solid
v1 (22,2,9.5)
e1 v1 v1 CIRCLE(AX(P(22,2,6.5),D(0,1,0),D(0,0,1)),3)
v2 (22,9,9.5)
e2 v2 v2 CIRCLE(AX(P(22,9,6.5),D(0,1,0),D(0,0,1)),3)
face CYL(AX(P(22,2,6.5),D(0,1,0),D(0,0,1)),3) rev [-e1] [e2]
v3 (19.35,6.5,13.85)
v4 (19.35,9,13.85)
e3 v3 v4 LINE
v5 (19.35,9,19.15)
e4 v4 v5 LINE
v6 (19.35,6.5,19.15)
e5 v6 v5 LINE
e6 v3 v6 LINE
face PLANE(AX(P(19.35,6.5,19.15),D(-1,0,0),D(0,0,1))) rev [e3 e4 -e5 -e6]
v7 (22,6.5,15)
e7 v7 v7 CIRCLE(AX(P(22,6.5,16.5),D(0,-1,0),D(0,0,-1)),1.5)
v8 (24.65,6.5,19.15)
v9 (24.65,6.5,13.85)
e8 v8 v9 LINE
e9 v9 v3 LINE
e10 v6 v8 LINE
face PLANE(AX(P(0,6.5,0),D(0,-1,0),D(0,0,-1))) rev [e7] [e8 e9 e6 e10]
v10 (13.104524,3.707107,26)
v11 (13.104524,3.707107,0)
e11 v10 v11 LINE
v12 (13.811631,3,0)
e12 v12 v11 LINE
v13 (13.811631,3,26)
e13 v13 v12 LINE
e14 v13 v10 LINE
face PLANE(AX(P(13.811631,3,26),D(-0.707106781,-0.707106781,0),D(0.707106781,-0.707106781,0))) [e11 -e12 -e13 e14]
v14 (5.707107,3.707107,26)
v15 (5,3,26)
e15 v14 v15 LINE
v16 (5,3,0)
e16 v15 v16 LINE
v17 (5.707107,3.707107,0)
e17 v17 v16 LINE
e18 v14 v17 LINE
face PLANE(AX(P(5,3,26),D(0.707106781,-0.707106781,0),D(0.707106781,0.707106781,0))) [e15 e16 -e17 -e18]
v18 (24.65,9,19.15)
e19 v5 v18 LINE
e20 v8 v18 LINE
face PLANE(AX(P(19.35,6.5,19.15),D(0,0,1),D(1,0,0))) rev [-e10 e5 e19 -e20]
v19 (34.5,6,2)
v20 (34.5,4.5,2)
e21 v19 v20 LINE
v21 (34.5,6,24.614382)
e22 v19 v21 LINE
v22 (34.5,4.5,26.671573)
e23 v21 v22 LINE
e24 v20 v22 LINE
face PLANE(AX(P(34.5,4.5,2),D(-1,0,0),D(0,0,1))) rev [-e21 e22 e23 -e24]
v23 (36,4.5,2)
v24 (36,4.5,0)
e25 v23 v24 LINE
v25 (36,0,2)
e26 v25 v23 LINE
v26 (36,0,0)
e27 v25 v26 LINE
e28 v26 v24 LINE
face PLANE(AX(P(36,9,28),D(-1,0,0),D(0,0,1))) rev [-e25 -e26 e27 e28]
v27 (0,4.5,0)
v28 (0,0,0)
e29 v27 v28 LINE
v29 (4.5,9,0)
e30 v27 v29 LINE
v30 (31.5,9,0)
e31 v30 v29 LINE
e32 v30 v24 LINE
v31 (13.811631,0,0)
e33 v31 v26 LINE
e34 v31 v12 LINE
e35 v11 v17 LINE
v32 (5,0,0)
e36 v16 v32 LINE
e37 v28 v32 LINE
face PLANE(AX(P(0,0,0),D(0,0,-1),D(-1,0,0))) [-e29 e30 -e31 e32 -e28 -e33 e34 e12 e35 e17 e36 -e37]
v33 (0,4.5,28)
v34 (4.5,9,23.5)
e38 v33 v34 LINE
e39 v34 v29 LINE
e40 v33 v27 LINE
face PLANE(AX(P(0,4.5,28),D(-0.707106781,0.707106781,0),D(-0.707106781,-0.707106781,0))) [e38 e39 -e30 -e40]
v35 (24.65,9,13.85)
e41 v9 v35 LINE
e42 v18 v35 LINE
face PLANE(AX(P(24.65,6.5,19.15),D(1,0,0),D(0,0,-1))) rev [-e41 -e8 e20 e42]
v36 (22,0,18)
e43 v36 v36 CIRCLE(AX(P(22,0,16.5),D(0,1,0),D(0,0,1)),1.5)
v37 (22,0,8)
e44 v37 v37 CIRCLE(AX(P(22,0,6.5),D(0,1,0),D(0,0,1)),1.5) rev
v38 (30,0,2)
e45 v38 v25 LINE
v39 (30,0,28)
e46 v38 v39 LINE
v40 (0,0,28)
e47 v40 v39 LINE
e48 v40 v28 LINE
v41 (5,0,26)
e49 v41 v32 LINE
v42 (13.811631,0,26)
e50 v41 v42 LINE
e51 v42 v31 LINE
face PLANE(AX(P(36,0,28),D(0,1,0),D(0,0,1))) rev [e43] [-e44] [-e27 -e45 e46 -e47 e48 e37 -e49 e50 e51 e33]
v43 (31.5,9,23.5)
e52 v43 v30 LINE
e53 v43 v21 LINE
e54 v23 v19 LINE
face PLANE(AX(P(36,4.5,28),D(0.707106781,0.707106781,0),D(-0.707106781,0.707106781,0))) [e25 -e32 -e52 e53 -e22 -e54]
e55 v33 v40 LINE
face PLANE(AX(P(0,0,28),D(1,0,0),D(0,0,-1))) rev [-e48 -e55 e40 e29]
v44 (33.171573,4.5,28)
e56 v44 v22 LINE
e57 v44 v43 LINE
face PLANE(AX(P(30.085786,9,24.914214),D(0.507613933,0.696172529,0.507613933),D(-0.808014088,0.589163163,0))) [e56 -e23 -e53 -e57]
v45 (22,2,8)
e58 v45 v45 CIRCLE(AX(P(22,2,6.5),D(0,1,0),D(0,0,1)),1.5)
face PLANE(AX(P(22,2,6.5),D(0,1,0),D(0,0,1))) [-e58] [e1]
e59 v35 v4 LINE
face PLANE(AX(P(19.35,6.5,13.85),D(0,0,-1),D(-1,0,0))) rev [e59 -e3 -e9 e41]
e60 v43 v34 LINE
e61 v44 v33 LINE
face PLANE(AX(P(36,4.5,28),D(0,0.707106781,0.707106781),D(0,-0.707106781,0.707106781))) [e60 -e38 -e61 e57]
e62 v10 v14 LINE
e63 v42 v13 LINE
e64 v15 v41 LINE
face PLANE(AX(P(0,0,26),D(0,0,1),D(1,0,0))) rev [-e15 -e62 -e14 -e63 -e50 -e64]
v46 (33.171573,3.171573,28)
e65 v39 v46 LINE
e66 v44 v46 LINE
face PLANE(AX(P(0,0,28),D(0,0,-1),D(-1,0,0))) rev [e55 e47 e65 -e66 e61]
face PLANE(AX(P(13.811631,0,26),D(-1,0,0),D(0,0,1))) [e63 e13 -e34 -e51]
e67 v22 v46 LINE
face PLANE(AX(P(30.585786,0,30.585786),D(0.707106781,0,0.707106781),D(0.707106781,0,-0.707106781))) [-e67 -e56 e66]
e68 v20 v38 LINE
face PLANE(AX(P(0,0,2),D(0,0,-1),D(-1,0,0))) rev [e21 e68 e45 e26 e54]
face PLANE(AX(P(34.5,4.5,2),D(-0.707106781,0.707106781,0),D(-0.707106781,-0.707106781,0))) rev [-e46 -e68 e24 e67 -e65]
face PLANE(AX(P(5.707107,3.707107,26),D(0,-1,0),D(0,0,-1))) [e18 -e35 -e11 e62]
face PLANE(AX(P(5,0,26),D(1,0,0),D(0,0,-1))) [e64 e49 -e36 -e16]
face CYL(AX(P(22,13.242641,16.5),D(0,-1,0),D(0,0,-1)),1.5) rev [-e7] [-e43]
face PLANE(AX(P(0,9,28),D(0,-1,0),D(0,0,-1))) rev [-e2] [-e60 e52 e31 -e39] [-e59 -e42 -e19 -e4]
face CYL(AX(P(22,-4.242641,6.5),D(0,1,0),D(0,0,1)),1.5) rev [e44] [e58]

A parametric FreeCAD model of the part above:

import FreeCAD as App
import Part
import Sketcher
from FreeCAD import Vector
Q = App.Units.Quantity


def add_polygon(sketch, points):
    """Adds a closed chain of lines whose ends are joined by coincident constraints."""
    first, n = sketch.GeometryCount, len(points)
    for a, b in zip(points, points[1:] + points[:1]):
        sketch.addGeometry(Part.LineSegment(App.Vector(*a, 0), App.Vector(*b, 0)), False)
    for i in range(n):
        sketch.addConstraint(Sketcher.Constraint("Coincident", first + i, 2, first + (i + 1) % n, 1))

doc = App.newDocument("Part")
params = doc.addObject("Spreadsheet::Sheet", "Params")
for row, (alias, value) in enumerate([
    ("sketch1_width", "36 mm"),
    ("sketch1_height", "9 mm"),
    ("pad1_length", "28 mm"),
    ("sketch2_width", "4.5 mm"),
    ("pocket1_length", "28 mm"),
    ("sketch3_width", "4.5 mm"),
    ("pocket2_length", "36 mm"),
    ("pocket3_length", "2 mm"),
    ("sketch6_height", "3 mm"),
    ("sketch6_length", "1 mm"),
    ("pocket5_length", "26 mm"),
    ("sketch7_width", "6 mm"),
    ("sketch7_width2", "1.5 mm"),
    ("pocket6_length", "26 mm"),
    ("sketch8_diameter", "6 mm"),
    ("pocket7_length", "7 mm"),
    ("sketch9_diameter", "3 mm"),
    ("pocket8_length", "2 mm"),
    ("sketch10_diameter", "3 mm"),
    ("pocket9_length", "9 mm"),
    ("sketch11_width", "5.3 mm"),
    ("pocket10_length", "2.5 mm"),
], start=1):
    params.set(f"A{row}", alias)
    params.set(f"B{row}", "=" + value)
    params.setAlias(f"B{row}", alias)

body = doc.addObject("PartDesign::Body", "Body")

# Sketch on XY plane
sketch1 = body.newObject("Sketcher::SketchObject", "Sketch")
sketch1.AttachmentSupport = (doc.getObject("XY_Plane"), [""])
sketch1.MapMode = "FlatFace"
add_polygon(sketch1, [(0, 9), (0, 0), (36, 0), (36, 9)])  # lines 0-3
sketch1.addConstraint([
    Sketcher.Constraint("Vertical", 0),
    Sketcher.Constraint("Horizontal", 1),
    Sketcher.Constraint("Vertical", 2),
    Sketcher.Constraint("Horizontal", 3),
    Sketcher.Constraint("Coincident", 0, 2, -1, 1),
    Sketcher.Constraint("DistanceX", 1, 1, 1, 2, Q("36 mm")),
    Sketcher.Constraint("DistanceY", 0, 2, 0, 1, Q("9 mm")),
])
sketch1.setExpression("Constraints[9]", "Params.sketch1_width")
sketch1.setExpression("Constraints[10]", "Params.sketch1_height")
pad1 = body.newObject("PartDesign::Pad", "Pad")
pad1.Profile = sketch1
pad1.setExpression("Length", "Params.pad1_length")

# Sketch on XY plane
sketch2 = body.newObject("Sketcher::SketchObject", "Sketch001")
sketch2.AttachmentSupport = (doc.getObject("XY_Plane"), [""])
sketch2.MapMode = "FlatFace"
add_polygon(sketch2, [(0, 4.5), (4.5, 9), (0, 9)])  # lines 0-2
add_polygon(sketch2, [(31.5, 9), (36, 4.5), (36, 9)])  # lines 3-5
sketch2.addConstraint([
    Sketcher.Constraint("Horizontal", 1),
    Sketcher.Constraint("Vertical", 2),
    Sketcher.Constraint("Vertical", 4),
    Sketcher.Constraint("Horizontal", 5),
    Sketcher.Constraint("PointOnObject", 1, 2, -2),
    Sketcher.Constraint("Perpendicular", 0, 3),
    Sketcher.Constraint("Horizontal", 2, 2, 3, 2),
    Sketcher.Constraint("Horizontal", 1, 2, 4, 2),
    Sketcher.Constraint("Equal", 1, 5),
    Sketcher.Constraint("DistanceX", 1, 2, 1, 1, Q("4.5 mm")),
    Sketcher.Constraint("DistanceY", -1, 1, 0, 2, Q("9 mm")),
    Sketcher.Constraint("DistanceX", -1, 1, 3, 2, Q("36 mm")),
])
sketch2.setExpression("Constraints[15]", "Params.sketch2_width")
pocket1 = body.newObject("PartDesign::Pocket", "Pocket")
pocket1.Profile = sketch2
pocket1.setExpression("Length", "Params.pocket1_length")
pocket1.Reversed = True

# Sketch on YZ plane
sketch3 = body.newObject("Sketcher::SketchObject", "Sketch002")
sketch3.AttachmentSupport = (doc.getObject("YZ_Plane"), [""])
sketch3.MapMode = "FlatFace"
add_polygon(sketch3, [(4.5, 28), (9, 23.5), (9, 28)])  # lines 0-2
sketch3.addConstraint([
    Sketcher.Constraint("Vertical", 1),
    Sketcher.Constraint("Horizontal", 2),
    Sketcher.Constraint("Equal", 2, 1),
    Sketcher.Constraint("DistanceX", 2, 2, 2, 1, Q("4.5 mm")),
    Sketcher.Constraint("DistanceX", -1, 1, 0, 2, Q("9 mm")),
    Sketcher.Constraint("DistanceY", -1, 1, 1, 2, Q("28 mm")),
])
sketch3.setExpression("Constraints[6]", "Params.sketch3_width")
pocket2 = body.newObject("PartDesign::Pocket", "Pocket001")
pocket2.Profile = sketch3
pocket2.setExpression("Length", "Params.pocket2_length")
pocket2.Reversed = True

# Sketch on an angled plane
sketch4 = body.newObject("Sketcher::SketchObject", "Sketch003")
sketch4.Placement = App.Placement(Vector(32, 0, 32), App.Rotation(Vector(0, 1, 0), Vector(-0.707106781, 0, 0.707106781), Vector(0.707106781, 0, 0.707106781), "ZXY"))
add_polygon(sketch4, [(0, 1.873786), (0, -13.745179), (11.440377, -13.745179), (11.440377, 1.873786)])  # lines 0-3
sketch4.addConstraint([
    Sketcher.Constraint("Vertical", 0),
    Sketcher.Constraint("Horizontal", 1),
    Sketcher.Constraint("Vertical", 2),
    Sketcher.Constraint("Horizontal", 3),
    Sketcher.Constraint("PointOnObject", 0, 2, -2),
    Sketcher.Constraint("DistanceX", 1, 1, 1, 2, Q("11.440377 mm")),
    Sketcher.Constraint("DistanceY", 0, 2, 0, 1, Q("15.618965 mm")),
    Sketcher.Constraint("DistanceY", 0, 2, -1, 1, Q("13.745179 mm")),
])
pocket3 = body.newObject("PartDesign::Pocket", "Pocket002")
pocket3.Profile = sketch4
pocket3.setExpression("Length", "Params.pocket3_length")

# Sketch on an angled plane
sketch5 = body.newObject("Sketcher::SketchObject", "Sketch004")
sketch5.Placement = App.Placement(Vector(4, 0, -4), App.Rotation(Vector(0.577350269, -0.577350269, 0.577350269), Vector(0.40824829, 0.81649658, 0.40824829), Vector(-0.707106781, 0, 0.707106781), "ZXY"))
add_polygon(sketch5, [(26.558112, 29.802125), (32.719348, 28.647425), (30.198627, 32.212263)])  # lines 0-2
sketch5.addConstraint([
    Sketcher.Constraint("Equal", 1, 2),
    Sketcher.Constraint("DistanceY", 0, 2, 2, 2, Q("1.154701 mm")),
    Sketcher.Constraint("DistanceX", 1, 2, 0, 2, Q("2.520721 mm")),
    Sketcher.Constraint("DistanceY", 0, 2, 1, 2, Q("3.564838 mm")),
    Sketcher.Constraint("DistanceX", -1, 1, 0, 2, Q("32.719348 mm")),
    Sketcher.Constraint("DistanceY", -1, 1, 0, 2, Q("28.647425 mm")),
])
pocket4 = body.newObject("PartDesign::Pocket", "Pocket003")
pocket4.Profile = sketch5
pocket4.Type = "ThroughAll"
pocket4.Midplane = True

# Sketch on XY plane
sketch6 = body.newObject("Sketcher::SketchObject", "Sketch005")
sketch6.AttachmentSupport = (doc.getObject("XY_Plane"), [""])
sketch6.MapMode = "FlatFace"
add_polygon(sketch6, [(5, 3), (5, 0), (13.811631, 0), (13.811631, 3), (13.104524, 3.707107), (5.707107, 3.707107)])  # lines 0-5
sketch6.addConstraint([
    Sketcher.Constraint("Vertical", 0),
    Sketcher.Constraint("Horizontal", 1),
    Sketcher.Constraint("Vertical", 2),
    Sketcher.Constraint("Horizontal", 4),
    Sketcher.Constraint("PointOnObject", 0, 2, -1),
    Sketcher.Constraint("Perpendicular", 3, 5),
    Sketcher.Constraint("Horizontal", 2, 2, 5, 2),
    Sketcher.Constraint("Equal", 3, 5),
    Sketcher.Constraint("DistanceY", 0, 2, 0, 1, Q("3 mm")),
    Sketcher.Constraint("Distance", 3, Q("1 mm")),
    Sketcher.Constraint("DistanceX", -1, 1, 0, 2, Q("5 mm")),
    Sketcher.Constraint("DistanceX", 1, 1, 1, 2, Q("8.811631 mm")),
])
sketch6.setExpression("Constraints[14]", "Params.sketch6_height")
sketch6.setExpression("Constraints[15]", "Params.sketch6_length")
pocket5 = body.newObject("PartDesign::Pocket", "Pocket004")
pocket5.Profile = sketch6
pocket5.setExpression("Length", "Params.pocket5_length")
pocket5.Reversed = True

# Sketch on XY plane
sketch7 = body.newObject("Sketcher::SketchObject", "Sketch006")
sketch7.AttachmentSupport = (doc.getObject("XY_Plane"), [""])
sketch7.MapMode = "FlatFace"
sketch7.AttachmentOffset = App.Placement(Vector(0, 0, 28), App.Rotation())
add_polygon(sketch7, [(30, 0), (36, 0), (36, 6), (34.5, 6), (34.5, 4.5)])  # lines 0-4
sketch7.addConstraint([
    Sketcher.Constraint("Horizontal", 0),
    Sketcher.Constraint("Vertical", 1),
    Sketcher.Constraint("Horizontal", 2),
    Sketcher.Constraint("Vertical", 3),
    Sketcher.Constraint("PointOnObject", 0, 2, -1),
    Sketcher.Constraint("Equal", 0, 1),
    Sketcher.Constraint("Equal", 2, 3),
    Sketcher.Constraint("DistanceX", 0, 1, 0, 2, Q("6 mm")),
    Sketcher.Constraint("DistanceX", 2, 2, 2, 1, Q("1.5 mm")),
    Sketcher.Constraint("DistanceX", -1, 1, 0, 2, Q("36 mm")),
])
sketch7.setExpression("Constraints[12]", "Params.sketch7_width")
sketch7.setExpression("Constraints[13]", "Params.sketch7_width2")
pocket6 = body.newObject("PartDesign::Pocket", "Pocket005")
pocket6.Profile = sketch7
pocket6.setExpression("Length", "Params.pocket6_length")

# Sketch on XZ plane
sketch8 = body.newObject("Sketcher::SketchObject", "Sketch007")
sketch8.AttachmentSupport = (doc.getObject("XZ_Plane"), [""])
sketch8.MapMode = "FlatFace"
sketch8.AttachmentOffset = App.Placement(Vector(0, 0, -9), App.Rotation())
sketch8.addGeometry(Part.Circle(Vector(22, 6.5, 0), Vector(0, 0, 1), 3), False)
sketch8.addConstraint([
    Sketcher.Constraint("Diameter", 0, Q("6 mm")),
    Sketcher.Constraint("DistanceX", -1, 1, 0, 3, Q("22 mm")),
    Sketcher.Constraint("DistanceY", -1, 1, 0, 3, Q("6.5 mm")),
])
sketch8.setExpression("Constraints[0]", "Params.sketch8_diameter")
pocket7 = body.newObject("PartDesign::Pocket", "Pocket006")
pocket7.Profile = sketch8
pocket7.setExpression("Length", "Params.pocket7_length")
pocket7.Reversed = True

# Sketch on XZ plane
sketch9 = body.newObject("Sketcher::SketchObject", "Sketch008")
sketch9.AttachmentSupport = (doc.getObject("XZ_Plane"), [""])
sketch9.MapMode = "FlatFace"
sketch9.AttachmentOffset = App.Placement(Vector(0, 0, -2), App.Rotation())
sketch9.addGeometry(Part.Circle(Vector(22, 6.5, 0), Vector(0, 0, 1), 1.5), False)
sketch9.addConstraint([
    Sketcher.Constraint("Diameter", 0, Q("3 mm")),
    Sketcher.Constraint("DistanceX", -1, 1, 0, 3, Q("22 mm")),
    Sketcher.Constraint("DistanceY", -1, 1, 0, 3, Q("6.5 mm")),
])
sketch9.setExpression("Constraints[0]", "Params.sketch9_diameter")
pocket8 = body.newObject("PartDesign::Pocket", "Pocket007")
pocket8.Profile = sketch9
pocket8.setExpression("Length", "Params.pocket8_length")
pocket8.Reversed = True

# Sketch on XZ plane
sketch10 = body.newObject("Sketcher::SketchObject", "Sketch009")
sketch10.AttachmentSupport = (doc.getObject("XZ_Plane"), [""])
sketch10.MapMode = "FlatFace"
sketch10.addGeometry(Part.Circle(Vector(22, 16.5, 0), Vector(0, 0, 1), 1.5), False)
sketch10.addConstraint([
    Sketcher.Constraint("Diameter", 0, Q("3 mm")),
    Sketcher.Constraint("DistanceX", -1, 1, 0, 3, Q("22 mm")),
    Sketcher.Constraint("DistanceY", -1, 1, 0, 3, Q("16.5 mm")),
])
sketch10.setExpression("Constraints[0]", "Params.sketch10_diameter")
pocket9 = body.newObject("PartDesign::Pocket", "Pocket008")
pocket9.Profile = sketch10
pocket9.setExpression("Length", "Params.pocket9_length")

# Sketch on XZ plane
sketch11 = body.newObject("Sketcher::SketchObject", "Sketch010")
sketch11.AttachmentSupport = (doc.getObject("XZ_Plane"), [""])
sketch11.MapMode = "FlatFace"
sketch11.AttachmentOffset = App.Placement(Vector(0, 0, -9), App.Rotation())
add_polygon(sketch11, [(19.35, 13.85), (19.35, 19.15), (24.65, 19.15), (24.65, 13.85)])  # lines 0-3
sketch11.addConstraint([
    Sketcher.Constraint("Vertical", 0),
    Sketcher.Constraint("Horizontal", 1),
    Sketcher.Constraint("Vertical", 2),
    Sketcher.Constraint("Horizontal", 3),
    Sketcher.Constraint("Equal", 3, 0),
    Sketcher.Constraint("DistanceX", 1, 1, 1, 2, Q("5.3 mm")),
    Sketcher.Constraint("DistanceX", -1, 1, 0, 2, Q("19.35 mm")),
    Sketcher.Constraint("DistanceY", -1, 1, 0, 2, Q("19.15 mm")),
])
sketch11.setExpression("Constraints[9]", "Params.sketch11_width")
pocket10 = body.newObject("PartDesign::Pocket", "Pocket009")
pocket10.Profile = sketch11
pocket10.setExpression("Length", "Params.pocket10_length")
pocket10.Reversed = True

doc.recompute()
